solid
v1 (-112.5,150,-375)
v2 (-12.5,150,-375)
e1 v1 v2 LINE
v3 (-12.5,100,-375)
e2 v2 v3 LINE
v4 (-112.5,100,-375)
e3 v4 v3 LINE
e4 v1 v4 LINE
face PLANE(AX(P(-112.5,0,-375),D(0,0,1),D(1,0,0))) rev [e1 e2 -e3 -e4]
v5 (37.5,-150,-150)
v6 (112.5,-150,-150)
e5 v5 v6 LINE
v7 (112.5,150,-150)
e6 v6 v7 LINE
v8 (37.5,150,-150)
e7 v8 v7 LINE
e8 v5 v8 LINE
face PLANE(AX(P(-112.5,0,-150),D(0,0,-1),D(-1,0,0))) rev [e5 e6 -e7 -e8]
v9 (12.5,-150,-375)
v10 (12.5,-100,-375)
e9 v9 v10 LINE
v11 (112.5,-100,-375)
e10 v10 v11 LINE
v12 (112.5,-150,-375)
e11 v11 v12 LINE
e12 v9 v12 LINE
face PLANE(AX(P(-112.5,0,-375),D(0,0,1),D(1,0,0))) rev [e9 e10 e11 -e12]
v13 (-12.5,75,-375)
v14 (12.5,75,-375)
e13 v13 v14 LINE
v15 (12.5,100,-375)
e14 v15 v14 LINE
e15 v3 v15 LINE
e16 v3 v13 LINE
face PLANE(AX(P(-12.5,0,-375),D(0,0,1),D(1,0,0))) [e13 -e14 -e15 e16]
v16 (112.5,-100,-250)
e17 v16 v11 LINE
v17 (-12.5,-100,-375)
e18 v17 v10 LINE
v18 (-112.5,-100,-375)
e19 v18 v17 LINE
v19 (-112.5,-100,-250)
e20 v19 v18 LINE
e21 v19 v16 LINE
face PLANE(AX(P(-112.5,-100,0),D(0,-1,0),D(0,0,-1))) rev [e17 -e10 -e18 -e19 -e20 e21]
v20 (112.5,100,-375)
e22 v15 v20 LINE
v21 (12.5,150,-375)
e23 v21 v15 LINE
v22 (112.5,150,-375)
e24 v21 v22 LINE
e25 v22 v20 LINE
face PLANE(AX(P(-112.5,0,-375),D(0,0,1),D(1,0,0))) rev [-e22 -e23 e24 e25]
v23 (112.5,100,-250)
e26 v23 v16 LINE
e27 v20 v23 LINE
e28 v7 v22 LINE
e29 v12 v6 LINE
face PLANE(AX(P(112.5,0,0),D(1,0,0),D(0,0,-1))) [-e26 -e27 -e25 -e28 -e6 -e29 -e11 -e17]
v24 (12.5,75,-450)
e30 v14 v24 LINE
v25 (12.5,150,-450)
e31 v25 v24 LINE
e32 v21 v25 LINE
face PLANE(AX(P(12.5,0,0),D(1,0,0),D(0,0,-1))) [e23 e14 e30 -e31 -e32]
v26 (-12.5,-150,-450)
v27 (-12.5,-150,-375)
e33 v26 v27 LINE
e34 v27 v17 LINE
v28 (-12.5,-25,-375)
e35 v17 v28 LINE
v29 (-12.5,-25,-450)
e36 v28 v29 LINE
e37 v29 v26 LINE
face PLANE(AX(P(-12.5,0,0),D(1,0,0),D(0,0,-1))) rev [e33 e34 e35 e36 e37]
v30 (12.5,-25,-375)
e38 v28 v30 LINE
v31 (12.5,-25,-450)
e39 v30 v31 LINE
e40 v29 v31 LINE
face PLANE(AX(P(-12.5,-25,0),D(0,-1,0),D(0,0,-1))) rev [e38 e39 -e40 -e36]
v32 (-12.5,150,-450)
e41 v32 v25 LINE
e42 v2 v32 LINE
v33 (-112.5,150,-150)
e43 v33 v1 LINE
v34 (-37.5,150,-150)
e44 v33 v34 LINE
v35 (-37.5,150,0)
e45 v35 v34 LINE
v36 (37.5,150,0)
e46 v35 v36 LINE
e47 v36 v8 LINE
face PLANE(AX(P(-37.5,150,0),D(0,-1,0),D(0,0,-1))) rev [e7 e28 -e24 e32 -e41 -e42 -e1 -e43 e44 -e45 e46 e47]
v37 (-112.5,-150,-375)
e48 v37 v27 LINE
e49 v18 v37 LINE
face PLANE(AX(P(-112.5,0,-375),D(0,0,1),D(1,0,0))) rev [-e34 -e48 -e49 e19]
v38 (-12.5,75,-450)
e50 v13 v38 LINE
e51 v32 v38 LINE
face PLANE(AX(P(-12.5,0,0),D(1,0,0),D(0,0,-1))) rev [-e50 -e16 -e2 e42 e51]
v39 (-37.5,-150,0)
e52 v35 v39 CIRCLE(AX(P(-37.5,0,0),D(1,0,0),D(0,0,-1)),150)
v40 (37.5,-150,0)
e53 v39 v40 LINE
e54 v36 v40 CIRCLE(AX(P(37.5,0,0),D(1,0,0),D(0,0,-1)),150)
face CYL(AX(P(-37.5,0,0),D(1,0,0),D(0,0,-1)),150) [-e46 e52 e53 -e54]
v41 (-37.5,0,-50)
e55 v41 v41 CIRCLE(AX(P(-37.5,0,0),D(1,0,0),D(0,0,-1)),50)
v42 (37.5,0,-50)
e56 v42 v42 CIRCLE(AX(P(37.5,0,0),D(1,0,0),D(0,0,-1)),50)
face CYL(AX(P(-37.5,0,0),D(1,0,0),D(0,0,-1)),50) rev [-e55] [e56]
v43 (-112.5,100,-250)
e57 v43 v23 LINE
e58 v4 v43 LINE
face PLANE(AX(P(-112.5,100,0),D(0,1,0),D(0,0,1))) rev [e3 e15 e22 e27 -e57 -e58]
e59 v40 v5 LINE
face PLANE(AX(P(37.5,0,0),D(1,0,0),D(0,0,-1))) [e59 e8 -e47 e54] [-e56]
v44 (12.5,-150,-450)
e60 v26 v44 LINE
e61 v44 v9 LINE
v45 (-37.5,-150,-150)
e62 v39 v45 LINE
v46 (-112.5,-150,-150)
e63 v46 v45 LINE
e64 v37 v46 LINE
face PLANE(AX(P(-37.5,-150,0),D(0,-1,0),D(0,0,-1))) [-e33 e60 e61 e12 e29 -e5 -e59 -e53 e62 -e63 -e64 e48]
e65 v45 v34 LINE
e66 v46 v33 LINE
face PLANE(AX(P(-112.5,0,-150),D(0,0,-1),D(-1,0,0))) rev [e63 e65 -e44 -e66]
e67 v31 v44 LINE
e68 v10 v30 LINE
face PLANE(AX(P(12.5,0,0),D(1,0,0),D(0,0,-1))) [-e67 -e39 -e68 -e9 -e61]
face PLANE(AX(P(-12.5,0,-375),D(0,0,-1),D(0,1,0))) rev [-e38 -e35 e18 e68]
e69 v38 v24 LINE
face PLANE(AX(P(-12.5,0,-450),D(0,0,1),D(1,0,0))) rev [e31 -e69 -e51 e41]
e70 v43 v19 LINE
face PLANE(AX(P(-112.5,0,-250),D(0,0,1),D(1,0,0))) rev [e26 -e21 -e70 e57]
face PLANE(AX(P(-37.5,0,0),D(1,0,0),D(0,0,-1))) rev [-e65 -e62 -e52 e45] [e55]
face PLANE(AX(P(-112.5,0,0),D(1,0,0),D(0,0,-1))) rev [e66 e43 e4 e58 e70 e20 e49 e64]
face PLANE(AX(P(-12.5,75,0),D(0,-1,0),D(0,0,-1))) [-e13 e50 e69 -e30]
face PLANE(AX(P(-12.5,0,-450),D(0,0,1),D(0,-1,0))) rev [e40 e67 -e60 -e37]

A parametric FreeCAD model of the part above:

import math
import FreeCAD as App
import Part
import Sketcher
Q = App.Units.Quantity


def add_polygon(sketch, points):
    """Adds a closed chain of lines whose ends are joined by coincident constraints."""
    first, n = sketch.GeometryCount, len(points)
    for a, b in zip(points, points[1:] + points[:1]):
        sketch.addGeometry(Part.LineSegment(App.Vector(*a, 0), App.Vector(*b, 0)), False)
    for i in range(n):
        sketch.addConstraint(Sketcher.Constraint("Coincident", first + i, 2, first + (i + 1) % n, 1))

doc = App.newDocument("Part")
body = doc.addObject("PartDesign::Body", "Body")

# Sketch on YZ plane
sketch1 = body.newObject("Sketcher::SketchObject", "Sketch")
sketch1.AttachmentSupport = (doc.getObject("YZ_Plane"), [""])
sketch1.MapMode = "FlatFace"
sketch1.addGeometry(Part.LineSegment(App.Vector(150, -150, 0), App.Vector(150, 0, 0)), False)
sketch1.addGeometry(Part.ArcOfCircle(Part.Circle(App.Vector(0, 0, 0), App.Vector(0, 0, 1), 150), math.radians(0), math.radians(180)), False)
sketch1.addGeometry(Part.LineSegment(App.Vector(-150, 0, 0), App.Vector(-150, -150, 0)), False)
sketch1.addGeometry(Part.LineSegment(App.Vector(-150, -150, 0), App.Vector(150, -150, 0)), False)
sketch1.addGeometry(Part.Circle(App.Vector(0, 0, 0), App.Vector(0, 0, 1), 50), False)
sketch1.addConstraint(Sketcher.Constraint("Tangent", 0, 2, 1, 1))
sketch1.addConstraint(Sketcher.Constraint("Tangent", 1, 2, 2, 1))
sketch1.addConstraint(Sketcher.Constraint("Coincident", 2, 2, 3, 1))
sketch1.addConstraint(Sketcher.Constraint("Coincident", 3, 2, 0, 1))
sketch1.addConstraint(Sketcher.Constraint("Vertical", 0))
sketch1.addConstraint(Sketcher.Constraint("Vertical", 2))
sketch1.addConstraint(Sketcher.Constraint("Horizontal", 3))
sketch1.addConstraint(Sketcher.Constraint("Coincident", 1, 3, -1, 1))
sketch1.addConstraint(Sketcher.Constraint("Coincident", 4, 3, -1, 1))
sketch1.addConstraint(Sketcher.Constraint("Diameter", 4, Q("100 mm")))
sketch1.addConstraint(Sketcher.Constraint("Radius", 1, Q("150 mm")))
sketch1.addConstraint(Sketcher.Constraint("DistanceY", 0, 1, 0, 2, Q("150 mm")))
pad1 = body.newObject("PartDesign::Pad", "Pad")
pad1.Profile = sketch1
pad1.Type = "TwoLengths"
pad1.Length = 37.5
pad1.Length2 = 37.5

# Sketch on YZ plane
sketch2 = body.newObject("Sketcher::SketchObject", "Sketch001")
sketch2.AttachmentSupport = (doc.getObject("YZ_Plane"), [""])
sketch2.MapMode = "FlatFace"
add_polygon(sketch2, [(-150, -150), (-150, -375), (-100, -375), (-100, -250), (100, -250), (100, -375), (150, -375), (150, -150)])  # lines 0-7
sketch2.addConstraint(Sketcher.Constraint("Vertical", 0))
sketch2.addConstraint(Sketcher.Constraint("Horizontal", 1))
sketch2.addConstraint(Sketcher.Constraint("Vertical", 2))
sketch2.addConstraint(Sketcher.Constraint("Horizontal", 3))
sketch2.addConstraint(Sketcher.Constraint("Vertical", 4))
sketch2.addConstraint(Sketcher.Constraint("Horizontal", 5))
sketch2.addConstraint(Sketcher.Constraint("Vertical", 6))
sketch2.addConstraint(Sketcher.Constraint("Horizontal", 7))
sketch2.addConstraint(Sketcher.Constraint("Symmetric", 1, 2, 4, 2, -2))
sketch2.addConstraint(Sketcher.Constraint("Equal", 1, 5))
sketch2.addConstraint(Sketcher.Constraint("DistanceX", 1, 1, 1, 2, Q("50 mm")))
sketch2.addConstraint(Sketcher.Constraint("DistanceX", 3, 1, 3, 2, Q("200 mm")))
sketch2.addConstraint(Sketcher.Constraint("DistanceY", 0, 2, 0, 1, Q("225 mm")))
sketch2.addConstraint(Sketcher.Constraint("DistanceY", 2, 1, 2, 2, Q("125 mm")))
sketch2.addConstraint(Sketcher.Constraint("DistanceY", 0, 2, -1, 1, Q("375 mm")))
pad2 = body.newObject("PartDesign::Pad", "Pad001")
pad2.Profile = sketch2
pad2.Type = "TwoLengths"
pad2.Length = 112.5
pad2.Length2 = 112.5

# Sketch on YZ plane
sketch3 = body.newObject("Sketcher::SketchObject", "Sketch002")
sketch3.AttachmentSupport = (doc.getObject("YZ_Plane"), [""])
sketch3.MapMode = "FlatFace"
add_polygon(sketch3, [(75, -375), (75, -450), (150, -450), (150, -375)])  # lines 0-3
sketch3.addConstraint(Sketcher.Constraint("Vertical", 0))
sketch3.addConstraint(Sketcher.Constraint("Horizontal", 1))
sketch3.addConstraint(Sketcher.Constraint("Vertical", 2))
sketch3.addConstraint(Sketcher.Constraint("Horizontal", 3))
sketch3.addConstraint(Sketcher.Constraint("Equal", 3, 0))
sketch3.addConstraint(Sketcher.Constraint("DistanceX", 1, 1, 1, 2, Q("75 mm")))
sketch3.addConstraint(Sketcher.Constraint("DistanceX", -1, 1, 0, 2, Q("75 mm")))
sketch3.addConstraint(Sketcher.Constraint("DistanceY", 0, 2, -1, 1, Q("450 mm")))
pad3 = body.newObject("PartDesign::Pad", "Pad002")
pad3.Profile = sketch3
pad3.Type = "TwoLengths"
pad3.Length = 12.5
pad3.Length2 = 12.5

# Sketch on YZ plane
sketch4 = body.newObject("Sketcher::SketchObject", "Sketch003")
sketch4.AttachmentSupport = (doc.getObject("YZ_Plane"), [""])
sketch4.MapMode = "FlatFace"
add_polygon(sketch4, [(-150, -375), (-150, -450), (-25, -450), (-25, -375)])  # lines 0-3
sketch4.addConstraint(Sketcher.Constraint("Vertical", 0))
sketch4.addConstraint(Sketcher.Constraint("Horizontal", 1))
sketch4.addConstraint(Sketcher.Constraint("Vertical", 2))
sketch4.addConstraint(Sketcher.Constraint("Horizontal", 3))
sketch4.addConstraint(Sketcher.Constraint("DistanceX", 1, 1, 1, 2, Q("125 mm")))
sketch4.addConstraint(Sketcher.Constraint("DistanceY", 0, 2, 0, 1, Q("75 mm")))
sketch4.addConstraint(Sketcher.Constraint("DistanceX", 0, 2, -1, 1, Q("150 mm")))
sketch4.addConstraint(Sketcher.Constraint("DistanceY", 0, 2, -1, 1, Q("450 mm")))
pad4 = body.newObject("PartDesign::Pad", "Pad003")
pad4.Profile = sketch4
pad4.Type = "TwoLengths"
pad4.Length = 12.5
pad4.Length2 = 12.5

doc.recompute()
